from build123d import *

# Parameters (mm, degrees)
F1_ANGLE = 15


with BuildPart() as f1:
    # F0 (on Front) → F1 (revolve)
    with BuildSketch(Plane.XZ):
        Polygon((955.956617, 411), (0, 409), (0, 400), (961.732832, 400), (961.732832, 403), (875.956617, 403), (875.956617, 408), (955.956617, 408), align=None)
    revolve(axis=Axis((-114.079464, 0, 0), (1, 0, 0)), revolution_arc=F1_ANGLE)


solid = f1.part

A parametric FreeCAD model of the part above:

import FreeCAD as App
import Part
import Sketcher

doc = App.newDocument("Part")
params = doc.addObject("Spreadsheet::Sheet", "Params")
for row, (alias, value) in enumerate([
    ("sketch1_width", "80 mm"),
    ("sketch1_height", "9 mm"),
    ("sketch1_height2", "3 mm"),
    ("sketch1_height3", "5 mm"),
    ("revolution_angle", "15 deg"),
], start=1):
    params.set(f"A{row}", alias)
    params.set(f"B{row}", "=" + value)
    params.setAlias(f"B{row}", alias)

body = doc.addObject("PartDesign::Body", "Body")

# Sketch on XZ plane
sketch1 = body.newObject("Sketcher::SketchObject", "Sketch")
sketch1.AttachmentSupport = (doc.getObject("XZ_Plane"), [""])
sketch1.MapMode = "FlatFace"
sketch1.addGeometry([
    Part.LineSegment(App.Vector(956, 411, 0), App.Vector(0, 409, 0)),  # 0
    Part.LineSegment(App.Vector(0, 409, 0), App.Vector(0, 400, 0)),  # 1
    Part.LineSegment(App.Vector(0, 400, 0), App.Vector(961.7, 400, 0)),  # 2
    Part.LineSegment(App.Vector(961.7, 400, 0), App.Vector(961.7, 403, 0)),  # 3
    Part.LineSegment(App.Vector(961.7, 403, 0), App.Vector(876, 403, 0)),  # 4
    Part.LineSegment(App.Vector(876, 403, 0), App.Vector(876, 408, 0)),  # 5
    Part.LineSegment(App.Vector(876, 408, 0), App.Vector(956, 408, 0)),  # 6
    Part.LineSegment(App.Vector(956, 408, 0), App.Vector(956, 411, 0)),  # 7
], False)
sketch1.addConstraint([
    Sketcher.Constraint("Coincident", 0, 2, 1, 1),
    Sketcher.Constraint("Coincident", 1, 2, 2, 1),
    Sketcher.Constraint("Coincident", 2, 2, 3, 1),
    Sketcher.Constraint("Coincident", 3, 2, 4, 1),
    Sketcher.Constraint("Coincident", 4, 2, 5, 1),
    Sketcher.Constraint("Coincident", 5, 2, 6, 1),
    Sketcher.Constraint("Coincident", 6, 2, 7, 1),
    Sketcher.Constraint("Coincident", 7, 2, 0, 1),
    Sketcher.Constraint("Vertical", 1),
    Sketcher.Constraint("Horizontal", 2),
    Sketcher.Constraint("Vertical", 3),
    Sketcher.Constraint("Horizontal", 4),
    Sketcher.Constraint("Vertical", 5),
    Sketcher.Constraint("Horizontal", 6),
    Sketcher.Constraint("Vertical", 7),
    Sketcher.Constraint("PointOnObject", 0, 2, -2),
    Sketcher.Constraint("Equal", 3, 7),
    Sketcher.Constraint("DistanceX", 6, 1, 6, 2, 80.0),
    Sketcher.Constraint("DistanceY", 1, 2, 1, 1, 9.0),
    Sketcher.Constraint("DistanceY", 3, 1, 3, 2, 3.0),
    Sketcher.Constraint("DistanceY", 5, 1, 5, 2, 5.0),
    Sketcher.Constraint("DistanceY", -1, 1, 0, 2, 409.0),
    Sketcher.Constraint("DistanceX", 2, 1, 2, 2, 961.732832),
    Sketcher.Constraint("Distance", 0, 955.958709),
])
sketch1.setExpression("Constraints[17]", "Params.sketch1_width")
sketch1.setExpression("Constraints[18]", "Params.sketch1_height")
sketch1.setExpression("Constraints[19]", "Params.sketch1_height2")
sketch1.setExpression("Constraints[20]", "Params.sketch1_height3")
revolution = body.newObject("PartDesign::Revolution", "Revolution")
revolution.Profile = sketch1
revolution.ReferenceAxis = (sketch1, ["H_Axis"])
revolution.setExpression("Angle", "Params.revolution_angle")

doc.recompute()
